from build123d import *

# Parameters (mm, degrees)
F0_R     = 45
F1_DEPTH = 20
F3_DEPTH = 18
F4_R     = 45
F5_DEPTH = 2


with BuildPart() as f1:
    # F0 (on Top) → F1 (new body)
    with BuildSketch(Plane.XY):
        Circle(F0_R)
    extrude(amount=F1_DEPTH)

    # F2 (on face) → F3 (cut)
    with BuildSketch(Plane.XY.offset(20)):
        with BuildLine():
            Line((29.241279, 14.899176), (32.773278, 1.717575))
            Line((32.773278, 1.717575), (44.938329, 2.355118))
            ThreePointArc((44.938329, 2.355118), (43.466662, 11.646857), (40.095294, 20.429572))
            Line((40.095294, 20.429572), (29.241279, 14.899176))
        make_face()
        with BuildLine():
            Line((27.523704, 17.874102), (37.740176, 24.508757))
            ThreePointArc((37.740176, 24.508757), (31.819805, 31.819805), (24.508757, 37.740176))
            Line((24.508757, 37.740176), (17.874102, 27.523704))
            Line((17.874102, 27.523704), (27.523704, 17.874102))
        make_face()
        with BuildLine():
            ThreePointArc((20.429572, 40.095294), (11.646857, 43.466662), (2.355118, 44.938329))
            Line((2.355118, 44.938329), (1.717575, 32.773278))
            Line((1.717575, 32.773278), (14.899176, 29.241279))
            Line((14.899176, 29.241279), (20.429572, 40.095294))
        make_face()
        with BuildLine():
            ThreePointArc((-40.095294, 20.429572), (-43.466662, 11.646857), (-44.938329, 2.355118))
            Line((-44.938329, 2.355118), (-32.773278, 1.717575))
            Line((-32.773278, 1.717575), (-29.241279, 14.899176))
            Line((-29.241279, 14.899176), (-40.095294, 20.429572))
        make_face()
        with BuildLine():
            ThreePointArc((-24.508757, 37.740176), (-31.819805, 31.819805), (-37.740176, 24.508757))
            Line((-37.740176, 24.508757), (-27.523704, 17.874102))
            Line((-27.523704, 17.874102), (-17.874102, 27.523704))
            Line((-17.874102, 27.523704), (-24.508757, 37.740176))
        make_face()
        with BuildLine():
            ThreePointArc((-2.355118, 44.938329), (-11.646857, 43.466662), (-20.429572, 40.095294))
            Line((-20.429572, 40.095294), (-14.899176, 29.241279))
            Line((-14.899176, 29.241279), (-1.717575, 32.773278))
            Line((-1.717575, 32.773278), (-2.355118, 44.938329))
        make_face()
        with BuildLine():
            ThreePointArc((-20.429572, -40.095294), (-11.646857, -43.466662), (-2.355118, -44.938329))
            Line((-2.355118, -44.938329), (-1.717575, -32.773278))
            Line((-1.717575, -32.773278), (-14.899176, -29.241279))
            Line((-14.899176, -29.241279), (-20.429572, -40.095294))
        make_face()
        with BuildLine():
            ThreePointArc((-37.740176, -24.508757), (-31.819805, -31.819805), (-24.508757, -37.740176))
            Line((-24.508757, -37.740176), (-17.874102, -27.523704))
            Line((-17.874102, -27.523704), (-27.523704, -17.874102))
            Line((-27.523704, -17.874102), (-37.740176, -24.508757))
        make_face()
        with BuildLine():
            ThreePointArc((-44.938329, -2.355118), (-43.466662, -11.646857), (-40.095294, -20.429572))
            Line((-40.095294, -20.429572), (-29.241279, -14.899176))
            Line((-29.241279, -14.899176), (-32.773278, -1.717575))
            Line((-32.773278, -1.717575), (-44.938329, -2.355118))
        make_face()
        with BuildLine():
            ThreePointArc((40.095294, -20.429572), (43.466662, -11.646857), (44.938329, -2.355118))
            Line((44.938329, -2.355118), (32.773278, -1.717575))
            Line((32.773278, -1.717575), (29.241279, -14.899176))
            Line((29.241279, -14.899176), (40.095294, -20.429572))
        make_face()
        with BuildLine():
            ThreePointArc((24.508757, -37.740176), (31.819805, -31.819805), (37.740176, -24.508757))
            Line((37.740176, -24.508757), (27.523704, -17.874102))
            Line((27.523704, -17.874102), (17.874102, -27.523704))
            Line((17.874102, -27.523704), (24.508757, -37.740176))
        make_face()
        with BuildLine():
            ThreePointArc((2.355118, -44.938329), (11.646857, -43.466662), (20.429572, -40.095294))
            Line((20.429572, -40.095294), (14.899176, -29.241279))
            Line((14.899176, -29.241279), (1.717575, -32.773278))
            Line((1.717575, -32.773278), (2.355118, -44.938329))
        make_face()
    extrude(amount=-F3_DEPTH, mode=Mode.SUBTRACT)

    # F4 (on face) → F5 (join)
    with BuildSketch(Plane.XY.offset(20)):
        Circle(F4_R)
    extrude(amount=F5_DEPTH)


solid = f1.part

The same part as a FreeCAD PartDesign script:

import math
import FreeCAD as App
import Part
import Sketcher
Q = App.Units.Quantity

doc = App.newDocument("Part")
body = doc.addObject("PartDesign::Body", "Body")

sketch1 = body.newObject("Sketcher::SketchObject", "Sketch")
sketch1.AttachmentSupport = (doc.getObject("XY_Plane"), [""])
sketch1.MapMode = "FlatFace"
sketch1.addGeometry(Part.Circle(App.Vector(0, 0, 0), App.Vector(0, 0, 1), 45), False)
sketch1.addConstraint(Sketcher.Constraint("Coincident", 0, 3, -1, 1))
sketch1.addConstraint(Sketcher.Constraint("Diameter", 0, Q("90 mm")))
pad1 = body.newObject("PartDesign::Pad", "Pad")
pad1.Profile = sketch1
pad1.Length = 20

sketch2 = body.newObject("Sketcher::SketchObject", "Sketch001")
sketch2.AttachmentSupport = (doc.getObject("XY_Plane"), [""])
sketch2.MapMode = "FlatFace"
sketch2.AttachmentOffset = App.Placement(App.Vector(0, 0, 20), App.Rotation())
sketch2.addGeometry(Part.LineSegment(App.Vector(29, 15, 0), App.Vector(33, 2, 0)), False)
sketch2.addGeometry(Part.LineSegment(App.Vector(33, 2, 0), App.Vector(45, 2, 0)), False)
sketch2.addGeometry(Part.ArcOfCircle(Part.Circle(App.Vector(0, 0, 0), App.Vector(0, 0, 1), 45), math.radians(3), math.radians(27)), False)
sketch2.addGeometry(Part.LineSegment(App.Vector(40, 20, 0), App.Vector(29, 15, 0)), False)
sketch2.addGeometry(Part.LineSegment(App.Vector(28, 18, 0), App.Vector(38, 25, 0)), False)
sketch2.addGeometry(Part.ArcOfCircle(Part.Circle(App.Vector(0, 0, 0), App.Vector(0, 0, 1), 45), math.radians(33), math.radians(57)), False)
sketch2.addGeometry(Part.LineSegment(App.Vector(25, 38, 0), App.Vector(18, 28, 0)), False)
sketch2.addGeometry(Part.LineSegment(App.Vector(18, 28, 0), App.Vector(28, 18, 0)), False)
sketch2.addGeometry(Part.ArcOfCircle(Part.Circle(App.Vector(0, 0, 0), App.Vector(0, 0, 1), 45), math.radians(63), math.radians(87)), False)
sketch2.addGeometry(Part.LineSegment(App.Vector(2, 45, 0), App.Vector(2, 33, 0)), False)
sketch2.addGeometry(Part.LineSegment(App.Vector(2, 33, 0), App.Vector(15, 29, 0)), False)
sketch2.addGeometry(Part.LineSegment(App.Vector(15, 29, 0), App.Vector(20, 40, 0)), False)
sketch2.addGeometry(Part.ArcOfCircle(Part.Circle(App.Vector(0, 0, 0), App.Vector(0, 0, 1), 45), math.radians(153), math.radians(177)), False)
sketch2.addGeometry(Part.LineSegment(App.Vector(-45, 2, 0), App.Vector(-33, 2, 0)), False)
sketch2.addGeometry(Part.LineSegment(App.Vector(-33, 2, 0), App.Vector(-29, 15, 0)), False)
sketch2.addGeometry(Part.LineSegment(App.Vector(-29, 15, 0), App.Vector(-40, 20, 0)), False)
sketch2.addGeometry(Part.ArcOfCircle(Part.Circle(App.Vector(0, 0, 0), App.Vector(0, 0, 1), 45), math.radians(123), math.radians(147)), False)
sketch2.addGeometry(Part.LineSegment(App.Vector(-38, 25, 0), App.Vector(-28, 18, 0)), False)
sketch2.addGeometry(Part.LineSegment(App.Vector(-28, 18, 0), App.Vector(-18, 28, 0)), False)
sketch2.addGeometry(Part.LineSegment(App.Vector(-18, 28, 0), App.Vector(-25, 38, 0)), False)
sketch2.addGeometry(Part.ArcOfCircle(Part.Circle(App.Vector(0, 0, 0), App.Vector(0, 0, 1), 45), math.radians(93), math.radians(117)), False)
sketch2.addGeometry(Part.LineSegment(App.Vector(-20, 40, 0), App.Vector(-15, 29, 0)), False)
sketch2.addGeometry(Part.LineSegment(App.Vector(-15, 29, 0), App.Vector(-2, 33, 0)), False)
sketch2.addGeometry(Part.LineSegment(App.Vector(-2, 33, 0), App.Vector(-2, 45, 0)), False)
sketch2.addGeometry(Part.ArcOfCircle(Part.Circle(App.Vector(0, 0, 0), App.Vector(0, 0, 1), 45), math.radians(-117), math.radians(-93)), False)
sketch2.addGeometry(Part.LineSegment(App.Vector(-2, -45, 0), App.Vector(-2, -33, 0)), False)
sketch2.addGeometry(Part.LineSegment(App.Vector(-2, -33, 0), App.Vector(-15, -29, 0)), False)
sketch2.addGeometry(Part.LineSegment(App.Vector(-15, -29, 0), App.Vector(-20, -40, 0)), False)
sketch2.addGeometry(Part.ArcOfCircle(Part.Circle(App.Vector(0, 0, 0), App.Vector(0, 0, 1), 45), math.radians(-147), math.radians(-123)), False)
sketch2.addGeometry(Part.LineSegment(App.Vector(-25, -38, 0), App.Vector(-18, -28, 0)), False)
sketch2.addGeometry(Part.LineSegment(App.Vector(-18, -28, 0), App.Vector(-28, -18, 0)), False)
sketch2.addGeometry(Part.LineSegment(App.Vector(-28, -18, 0), App.Vector(-38, -25, 0)), False)
sketch2.addGeometry(Part.ArcOfCircle(Part.Circle(App.Vector(0, 0, 0), App.Vector(0, 0, 1), 45), math.radians(-177), math.radians(-153)), False)
sketch2.addGeometry(Part.LineSegment(App.Vector(-40, -20, 0), App.Vector(-29, -15, 0)), False)
sketch2.addGeometry(Part.LineSegment(App.Vector(-29, -15, 0), App.Vector(-33, -2, 0)), False)
sketch2.addGeometry(Part.LineSegment(App.Vector(-33, -2, 0), App.Vector(-45, -2, 0)), False)
sketch2.addGeometry(Part.ArcOfCircle(Part.Circle(App.Vector(0, 0, 0), App.Vector(0, 0, 1), 45), math.radians(-27), math.radians(-3)), False)
sketch2.addGeometry(Part.LineSegment(App.Vector(45, -2, 0), App.Vector(33, -2, 0)), False)
sketch2.addGeometry(Part.LineSegment(App.Vector(33, -2, 0), App.Vector(29, -15, 0)), False)
sketch2.addGeometry(Part.LineSegment(App.Vector(29, -15, 0), App.Vector(40, -20, 0)), False)
sketch2.addGeometry(Part.ArcOfCircle(Part.Circle(App.Vector(0, 0, 0), App.Vector(0, 0, 1), 45), math.radians(-57), math.radians(-33)), False)
sketch2.addGeometry(Part.LineSegment(App.Vector(38, -25, 0), App.Vector(28, -18, 0)), False)
sketch2.addGeometry(Part.LineSegment(App.Vector(28, -18, 0), App.Vector(18, -28, 0)), False)
sketch2.addGeometry(Part.LineSegment(App.Vector(18, -28, 0), App.Vector(25, -38, 0)), False)
sketch2.addGeometry(Part.ArcOfCircle(Part.Circle(App.Vector(0, 0, 0), App.Vector(0, 0, 1), 45), math.radians(-87), math.radians(-63)), False)
sketch2.addGeometry(Part.LineSegment(App.Vector(20, -40, 0), App.Vector(15, -29, 0)), False)
sketch2.addGeometry(Part.LineSegment(App.Vector(15, -29, 0), App.Vector(2, -33, 0)), False)
sketch2.addGeometry(Part.LineSegment(App.Vector(2, -33, 0), App.Vector(2, -45, 0)), False)
sketch2.addConstraint(Sketcher.Constraint("Coincident", 0, 2, 1, 1))
sketch2.addConstraint(Sketcher.Constraint("Coincident", 1, 2, 2, 1))
sketch2.addConstraint(Sketcher.Constraint("Coincident", 2, 2, 3, 1))
sketch2.addConstraint(Sketcher.Constraint("Coincident", 3, 2, 0, 1))
sketch2.addConstraint(Sketcher.Constraint("Coincident", 4, 2, 5, 1))
sketch2.addConstraint(Sketcher.Constraint("Coincident", 5, 2, 6, 1))
sketch2.addConstraint(Sketcher.Constraint("Coincident", 6, 2, 7, 1))
sketch2.addConstraint(Sketcher.Constraint("Coincident", 7, 2, 4, 1))
sketch2.addConstraint(Sketcher.Constraint("Coincident", 8, 2, 9, 1))
sketch2.addConstraint(Sketcher.Constraint("Coincident", 9, 2, 10, 1))
sketch2.addConstraint(Sketcher.Constraint("Coincident", 10, 2, 11, 1))
sketch2.addConstraint(Sketcher.Constraint("Coincident", 11, 2, 8, 1))
sketch2.addConstraint(Sketcher.Constraint("Coincident", 12, 2, 13, 1))
sketch2.addConstraint(Sketcher.Constraint("Coincident", 13, 2, 14, 1))
sketch2.addConstraint(Sketcher.Constraint("Coincident", 14, 2, 15, 1))
sketch2.addConstraint(Sketcher.Constraint("Coincident", 15, 2, 12, 1))
sketch2.addConstraint(Sketcher.Constraint("Coincident", 16, 2, 17, 1))
sketch2.addConstraint(Sketcher.Constraint("Coincident", 17, 2, 18, 1))
sketch2.addConstraint(Sketcher.Constraint("Coincident", 18, 2, 19, 1))
sketch2.addConstraint(Sketcher.Constraint("Coincident", 19, 2, 16, 1))
sketch2.addConstraint(Sketcher.Constraint("Coincident", 20, 2, 21, 1))
sketch2.addConstraint(Sketcher.Constraint("Coincident", 21, 2, 22, 1))
sketch2.addConstraint(Sketcher.Constraint("Coincident", 22, 2, 23, 1))
sketch2.addConstraint(Sketcher.Constraint("Coincident", 23, 2, 20, 1))
sketch2.addConstraint(Sketcher.Constraint("Coincident", 24, 2, 25, 1))
sketch2.addConstraint(Sketcher.Constraint("Coincident", 25, 2, 26, 1))
sketch2.addConstraint(Sketcher.Constraint("Coincident", 26, 2, 27, 1))
sketch2.addConstraint(Sketcher.Constraint("Coincident", 27, 2, 24, 1))
sketch2.addConstraint(Sketcher.Constraint("Coincident", 28, 2, 29, 1))
sketch2.addConstraint(Sketcher.Constraint("Coincident", 29, 2, 30, 1))
sketch2.addConstraint(Sketcher.Constraint("Coincident", 30, 2, 31, 1))
sketch2.addConstraint(Sketcher.Constraint("Coincident", 31, 2, 28, 1))
sketch2.addConstraint(Sketcher.Constraint("Coincident", 32, 2, 33, 1))
sketch2.addConstraint(Sketcher.Constraint("Coincident", 33, 2, 34, 1))
sketch2.addConstraint(Sketcher.Constraint("Coincident", 34, 2, 35, 1))
sketch2.addConstraint(Sketcher.Constraint("Coincident", 35, 2, 32, 1))
sketch2.addConstraint(Sketcher.Constraint("Coincident", 36, 2, 37, 1))
sketch2.addConstraint(Sketcher.Constraint("Coincident", 37, 2, 38, 1))
sketch2.addConstraint(Sketcher.Constraint("Coincident", 38, 2, 39, 1))
sketch2.addConstraint(Sketcher.Constraint("Coincident", 39, 2, 36, 1))
sketch2.addConstraint(Sketcher.Constraint("Coincident", 40, 2, 41, 1))
sketch2.addConstraint(Sketcher.Constraint("Coincident", 41, 2, 42, 1))
sketch2.addConstraint(Sketcher.Constraint("Coincident", 42, 2, 43, 1))
sketch2.addConstraint(Sketcher.Constraint("Coincident", 43, 2, 40, 1))
sketch2.addConstraint(Sketcher.Constraint("Coincident", 44, 2, 45, 1))
sketch2.addConstraint(Sketcher.Constraint("Coincident", 45, 2, 46, 1))
sketch2.addConstraint(Sketcher.Constraint("Coincident", 46, 2, 47, 1))
sketch2.addConstraint(Sketcher.Constraint("Coincident", 47, 2, 44, 1))
sketch2.addConstraint(Sketcher.Constraint("Coincident", 20, 3, 8, 3))
sketch2.addConstraint(Sketcher.Constraint("Coincident", 32, 3, 12, 3))
sketch2.addConstraint(Sketcher.Constraint("Coincident", 36, 3, 2, 3))
sketch2.addConstraint(Sketcher.Constraint("Coincident", 44, 3, 24, 3))
sketch2.addConstraint(Sketcher.Constraint("Equal", 2, 8))
sketch2.addConstraint(Sketcher.Constraint("Equal", 8, 12))
sketch2.addConstraint(Sketcher.Constraint("Equal", 5, 16))
sketch2.addConstraint(Sketcher.Constraint("Equal", 12, 20))
sketch2.addConstraint(Sketcher.Constraint("Equal", 20, 24))
sketch2.addConstraint(Sketcher.Constraint("Equal", 16, 28))
sketch2.addConstraint(Sketcher.Constraint("Equal", 24, 32))
sketch2.addConstraint(Sketcher.Constraint("Equal", 32, 36))
sketch2.addConstraint(Sketcher.Constraint("Equal", 28, 40))
sketch2.addConstraint(Sketcher.Constraint("Equal", 36, 44))
sketch2.addConstraint(Sketcher.Constraint("Symmetric", 2, 3, 12, 3, -1, 1))
sketch2.addConstraint(Sketcher.Constraint("Symmetric", 8, 3, 24, 3, -1, 1))
sketch2.addConstraint(Sketcher.Constraint("Symmetric", 5, 3, 28, 3, -1, 1))
sketch2.addConstraint(Sketcher.Constraint("Symmetric", 16, 3, 40, 3, -1, 1))
sketch2.addConstraint(Sketcher.Constraint("Symmetric", 9, 2, 25, 2, -1, 1))
sketch2.addConstraint(Sketcher.Constraint("Symmetric", 10, 2, 26, 2, -1, 1))
sketch2.addConstraint(Sketcher.Constraint("Symmetric", 6, 2, 29, 2, -1, 1))
sketch2.addConstraint(Sketcher.Constraint("Symmetric", 7, 2, 30, 2, -1, 1))
sketch2.addConstraint(Sketcher.Constraint("Symmetric", 3, 2, 33, 2, -1, 1))
sketch2.addConstraint(Sketcher.Constraint("Symmetric", 0, 2, 34, 2, -1, 1))
sketch2.addConstraint(Sketcher.Constraint("Symmetric", 13, 2, 37, 2, -1, 1))
sketch2.addConstraint(Sketcher.Constraint("Symmetric", 14, 2, 38, 2, -1, 1))
sketch2.addConstraint(Sketcher.Constraint("Symmetric", 17, 2, 41, 2, -1, 1))
sketch2.addConstraint(Sketcher.Constraint("Symmetric", 18, 2, 42, 2, -1, 1))
sketch2.addConstraint(Sketcher.Constraint("Symmetric", 21, 2, 45, 2, -1, 1))
sketch2.addConstraint(Sketcher.Constraint("Symmetric", 22, 2, 46, 2, -1, 1))
sketch2.addConstraint(Sketcher.Constraint("Symmetric", 5, 3, 16, 3, -2))
sketch2.addConstraint(Sketcher.Constraint("Symmetric", 1, 2, 12, 2, -2))
sketch2.addConstraint(Sketcher.Constraint("Symmetric", 0, 2, 13, 2, -2))
sketch2.addConstraint(Sketcher.Constraint("Symmetric", 3, 2, 14, 2, -2))
sketch2.addConstraint(Sketcher.Constraint("Symmetric", 7, 2, 17, 2, -2))
sketch2.addConstraint(Sketcher.Constraint("Symmetric", 6, 2, 18, 2, -2))
sketch2.addConstraint(Sketcher.Constraint("Symmetric", 11, 2, 20, 2, -2))
sketch2.addConstraint(Sketcher.Constraint("Symmetric", 10, 2, 21, 2, -2))
sketch2.addConstraint(Sketcher.Constraint("Symmetric", 9, 2, 22, 2, -2))
sketch2.addConstraint(Sketcher.Constraint("Perpendicular", 9, 13))
sketch2.addConstraint(Sketcher.Constraint("Perpendicular", 10, 14))
sketch2.addConstraint(Sketcher.Constraint("Perpendicular", 11, 15))
sketch2.addConstraint(Sketcher.Constraint("Perpendicular", 6, 17))
sketch2.addConstraint(Sketcher.Constraint("Perpendicular", 7, 18))
sketch2.addConstraint(Sketcher.Constraint("Perpendicular", 4, 19))
sketch2.addConstraint(Sketcher.Constraint("Perpendicular", 3, 21))
sketch2.addConstraint(Sketcher.Constraint("Perpendicular", 1, 23))
sketch2.addConstraint(Sketcher.Constraint("Perpendicular", 13, 25))
sketch2.addConstraint(Sketcher.Constraint("Perpendicular", 15, 27))
sketch2.addConstraint(Sketcher.Constraint("Perpendicular", 17, 29))
sketch2.addConstraint(Sketcher.Constraint("Perpendicular", 19, 31))
sketch2.addConstraint(Sketcher.Constraint("Perpendicular", 21, 33))
sketch2.addConstraint(Sketcher.Constraint("Perpendicular", 23, 35))
sketch2.addConstraint(Sketcher.Constraint("Perpendicular", 25, 37))
sketch2.addConstraint(Sketcher.Constraint("Perpendicular", 27, 39))
sketch2.addConstraint(Sketcher.Constraint("Perpendicular", 29, 41))
sketch2.addConstraint(Sketcher.Constraint("Perpendicular", 31, 43))
sketch2.addConstraint(Sketcher.Constraint("Perpendicular", 33, 45))
sketch2.addConstraint(Sketcher.Constraint("Perpendicular", 35, 47))
sketch2.addConstraint(Sketcher.Constraint("Horizontal", 4, 2, 16, 2))
sketch2.addConstraint(Sketcher.Constraint("Equal", 1, 3))
sketch2.addConstraint(Sketcher.Constraint("Equal", 3, 4))
sketch2.addConstraint(Sketcher.Constraint("Equal", 4, 6))
sketch2.addConstraint(Sketcher.Constraint("Equal", 0, 7))
sketch2.addConstraint(Sketcher.Constraint("Equal", 6, 9))
sketch2.addConstraint(Sketcher.Constraint("Equal", 7, 10))
sketch2.addConstraint(Sketcher.Constraint("Equal", 9, 11))
sketch2.addConstraint(Sketcher.Constraint("Angle", 0, Q("-75.000001 deg")))
sketch2.addConstraint(Sketcher.Constraint("Angle", 1, Q("2.999999 deg")))
sketch2.addConstraint(Sketcher.Constraint("Angle", 3, Q("-153.000004 deg")))
sketch2.addConstraint(Sketcher.Constraint("Angle", 4, Q("33.000002 deg")))
sketch2.addConstraint(Sketcher.Constraint("Radius", 2, Q("45.00001 mm")))
sketch2.addConstraint(Sketcher.Constraint("Radius", 5, Q("45.000037 mm")))
sketch2.addConstraint(Sketcher.Constraint("DistanceX", 3, 2, 0, 2, Q("3.531999 mm")))
sketch2.addConstraint(Sketcher.Constraint("DistanceY", 3, 2, 5, 2, Q("22.841 mm")))
sketch2.addConstraint(Sketcher.Constraint("DistanceX", 31, 2, 26, 2, Q("22.841 mm")))
sketch2.addConstraint(Sketcher.Constraint("DistanceY", 16, 3, 0, 2, Q("1.717602 mm")))
sketch2.addConstraint(Sketcher.Constraint("DistanceX", 0, 2, 4, 2, Q("4.966898 mm")))
sketch2.addConstraint(Sketcher.Constraint("DistanceY", 9, 2, 5, 2, Q("4.966898 mm")))
pocket1 = body.newObject("PartDesign::Pocket", "Pocket")
pocket1.Profile = sketch2
pocket1.Length = 18

sketch3 = body.newObject("Sketcher::SketchObject", "Sketch002")
sketch3.AttachmentSupport = (doc.getObject("XY_Plane"), [""])
sketch3.MapMode = "FlatFace"
sketch3.AttachmentOffset = App.Placement(App.Vector(0, 0, 20), App.Rotation())
sketch3.addGeometry(Part.Circle(App.Vector(0, 0, 0), App.Vector(0, 0, 1), 45), False)
sketch3.addConstraint(Sketcher.Constraint("Coincident", 0, 3, -1, 1))
sketch3.addConstraint(Sketcher.Constraint("Diameter", 0, Q("90 mm")))
pad2 = body.newObject("PartDesign::Pad", "Pad001")
pad2.Profile = sketch3
pad2.Length = 2

doc.recompute()
